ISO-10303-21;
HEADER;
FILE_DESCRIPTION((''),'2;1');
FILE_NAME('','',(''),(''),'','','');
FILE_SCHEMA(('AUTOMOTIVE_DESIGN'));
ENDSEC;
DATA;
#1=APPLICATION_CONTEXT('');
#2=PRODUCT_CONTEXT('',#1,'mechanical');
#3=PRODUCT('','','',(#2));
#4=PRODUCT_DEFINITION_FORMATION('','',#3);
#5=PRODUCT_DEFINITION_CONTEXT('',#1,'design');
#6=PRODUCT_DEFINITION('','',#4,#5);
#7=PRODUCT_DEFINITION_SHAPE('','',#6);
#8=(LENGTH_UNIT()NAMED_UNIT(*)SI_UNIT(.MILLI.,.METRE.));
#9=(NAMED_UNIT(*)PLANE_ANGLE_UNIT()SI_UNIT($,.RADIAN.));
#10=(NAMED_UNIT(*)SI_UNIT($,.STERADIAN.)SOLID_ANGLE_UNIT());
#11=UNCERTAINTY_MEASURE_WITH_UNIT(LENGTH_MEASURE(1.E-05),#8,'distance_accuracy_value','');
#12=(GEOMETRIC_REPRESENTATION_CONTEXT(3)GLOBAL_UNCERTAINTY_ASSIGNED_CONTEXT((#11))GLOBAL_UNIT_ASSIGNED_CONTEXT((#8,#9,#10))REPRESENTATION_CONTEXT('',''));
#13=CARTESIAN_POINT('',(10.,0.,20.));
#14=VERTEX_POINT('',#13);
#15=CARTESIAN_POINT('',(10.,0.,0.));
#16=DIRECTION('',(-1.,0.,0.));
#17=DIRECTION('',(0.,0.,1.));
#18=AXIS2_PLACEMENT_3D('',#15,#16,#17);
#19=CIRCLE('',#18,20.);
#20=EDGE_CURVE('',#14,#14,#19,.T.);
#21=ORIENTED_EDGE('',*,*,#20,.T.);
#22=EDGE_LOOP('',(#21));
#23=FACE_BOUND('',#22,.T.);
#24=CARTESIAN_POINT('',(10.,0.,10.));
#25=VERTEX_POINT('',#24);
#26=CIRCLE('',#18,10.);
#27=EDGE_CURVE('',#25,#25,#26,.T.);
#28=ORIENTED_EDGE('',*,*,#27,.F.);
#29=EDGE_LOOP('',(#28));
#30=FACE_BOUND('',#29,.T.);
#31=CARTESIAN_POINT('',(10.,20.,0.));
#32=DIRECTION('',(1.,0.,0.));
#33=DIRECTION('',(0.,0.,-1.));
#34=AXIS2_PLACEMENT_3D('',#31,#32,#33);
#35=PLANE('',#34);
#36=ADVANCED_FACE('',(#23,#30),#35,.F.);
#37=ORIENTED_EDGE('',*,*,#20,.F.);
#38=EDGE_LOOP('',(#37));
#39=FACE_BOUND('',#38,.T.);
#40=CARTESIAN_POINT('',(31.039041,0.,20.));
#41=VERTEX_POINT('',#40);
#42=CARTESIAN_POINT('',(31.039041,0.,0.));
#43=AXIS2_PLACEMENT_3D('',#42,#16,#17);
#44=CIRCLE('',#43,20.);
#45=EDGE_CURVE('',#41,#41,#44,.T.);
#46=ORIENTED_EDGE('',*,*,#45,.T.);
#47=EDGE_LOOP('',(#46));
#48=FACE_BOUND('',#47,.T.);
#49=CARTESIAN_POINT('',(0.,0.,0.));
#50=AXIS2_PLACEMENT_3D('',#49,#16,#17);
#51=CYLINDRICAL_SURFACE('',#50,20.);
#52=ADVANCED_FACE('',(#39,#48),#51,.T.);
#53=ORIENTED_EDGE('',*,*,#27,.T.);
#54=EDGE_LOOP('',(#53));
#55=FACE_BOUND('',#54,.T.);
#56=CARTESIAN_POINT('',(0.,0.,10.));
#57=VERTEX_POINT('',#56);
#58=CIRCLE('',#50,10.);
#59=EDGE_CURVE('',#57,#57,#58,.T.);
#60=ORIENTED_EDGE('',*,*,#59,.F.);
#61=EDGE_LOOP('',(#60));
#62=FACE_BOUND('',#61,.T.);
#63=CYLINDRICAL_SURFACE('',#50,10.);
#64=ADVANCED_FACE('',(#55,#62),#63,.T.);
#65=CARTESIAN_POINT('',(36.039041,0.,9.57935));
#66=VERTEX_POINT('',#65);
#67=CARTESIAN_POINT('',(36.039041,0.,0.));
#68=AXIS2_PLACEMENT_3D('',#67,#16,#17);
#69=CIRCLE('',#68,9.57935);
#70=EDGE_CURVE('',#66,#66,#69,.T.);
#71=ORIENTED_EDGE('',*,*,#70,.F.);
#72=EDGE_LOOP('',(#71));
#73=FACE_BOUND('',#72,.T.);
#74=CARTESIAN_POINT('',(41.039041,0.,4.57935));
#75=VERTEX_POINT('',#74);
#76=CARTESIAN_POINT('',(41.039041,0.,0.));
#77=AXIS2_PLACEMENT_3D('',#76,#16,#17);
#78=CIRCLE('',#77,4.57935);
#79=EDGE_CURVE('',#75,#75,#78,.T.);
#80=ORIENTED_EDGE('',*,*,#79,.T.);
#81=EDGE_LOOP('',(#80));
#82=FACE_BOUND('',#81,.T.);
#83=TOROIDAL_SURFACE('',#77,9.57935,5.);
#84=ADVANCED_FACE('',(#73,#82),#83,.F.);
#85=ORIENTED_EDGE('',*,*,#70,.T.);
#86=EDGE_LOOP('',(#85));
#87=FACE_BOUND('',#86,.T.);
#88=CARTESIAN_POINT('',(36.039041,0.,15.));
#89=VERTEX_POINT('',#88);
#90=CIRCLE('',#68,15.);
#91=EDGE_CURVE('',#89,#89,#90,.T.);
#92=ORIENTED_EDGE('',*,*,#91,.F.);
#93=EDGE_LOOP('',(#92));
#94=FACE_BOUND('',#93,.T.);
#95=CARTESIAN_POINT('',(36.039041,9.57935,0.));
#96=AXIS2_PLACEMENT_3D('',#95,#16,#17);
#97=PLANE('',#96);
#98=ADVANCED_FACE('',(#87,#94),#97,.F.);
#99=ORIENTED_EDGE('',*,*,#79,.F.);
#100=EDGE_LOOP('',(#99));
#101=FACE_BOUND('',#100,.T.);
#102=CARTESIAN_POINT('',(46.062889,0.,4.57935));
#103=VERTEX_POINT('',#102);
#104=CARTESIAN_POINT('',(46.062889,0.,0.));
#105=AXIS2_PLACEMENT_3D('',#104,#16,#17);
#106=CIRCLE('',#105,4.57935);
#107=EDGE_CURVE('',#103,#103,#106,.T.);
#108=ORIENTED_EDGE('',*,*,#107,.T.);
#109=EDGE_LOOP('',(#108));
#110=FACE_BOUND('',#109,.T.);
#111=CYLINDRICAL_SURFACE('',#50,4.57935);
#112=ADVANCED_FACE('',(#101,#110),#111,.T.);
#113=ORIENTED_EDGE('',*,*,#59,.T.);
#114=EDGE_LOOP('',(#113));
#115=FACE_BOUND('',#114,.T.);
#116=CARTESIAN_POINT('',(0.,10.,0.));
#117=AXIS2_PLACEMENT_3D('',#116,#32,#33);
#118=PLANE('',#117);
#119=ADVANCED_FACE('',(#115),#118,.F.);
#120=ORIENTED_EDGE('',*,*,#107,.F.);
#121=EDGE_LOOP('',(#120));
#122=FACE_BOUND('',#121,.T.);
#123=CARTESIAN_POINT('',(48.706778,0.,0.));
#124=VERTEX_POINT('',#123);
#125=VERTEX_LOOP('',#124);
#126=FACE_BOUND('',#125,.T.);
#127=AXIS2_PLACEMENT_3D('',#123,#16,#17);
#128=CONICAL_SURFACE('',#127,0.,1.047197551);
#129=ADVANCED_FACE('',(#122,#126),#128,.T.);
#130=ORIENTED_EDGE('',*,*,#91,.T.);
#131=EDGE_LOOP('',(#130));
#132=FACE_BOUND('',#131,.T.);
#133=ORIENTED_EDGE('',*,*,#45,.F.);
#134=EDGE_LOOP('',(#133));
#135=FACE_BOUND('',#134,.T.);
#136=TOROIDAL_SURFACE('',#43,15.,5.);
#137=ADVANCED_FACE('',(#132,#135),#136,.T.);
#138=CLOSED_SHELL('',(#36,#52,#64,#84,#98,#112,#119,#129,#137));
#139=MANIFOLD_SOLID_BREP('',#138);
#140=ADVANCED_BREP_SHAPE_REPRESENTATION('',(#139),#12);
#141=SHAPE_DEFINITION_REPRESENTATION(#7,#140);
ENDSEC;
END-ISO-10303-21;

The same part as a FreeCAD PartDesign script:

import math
import FreeCAD as App
import Part
import Sketcher
Q = App.Units.Quantity

doc = App.newDocument("Part")
params = doc.addObject("Spreadsheet::Sheet", "Params")
for row, (alias, value) in enumerate([
    ("sketch1_radius", "5 mm"),
    ("sketch1_width", "10 mm"),
    ("revolution_angle", "360 deg"),
], start=1):
    params.set(f"A{row}", alias)
    params.set(f"B{row}", "=" + value)
    params.setAlias(f"B{row}", alias)

body = doc.addObject("PartDesign::Body", "Body")

# Sketch on XY plane
sketch1 = body.newObject("Sketcher::SketchObject", "Sketch")
sketch1.AttachmentSupport = (doc.getObject("XY_Plane"), [""])
sketch1.MapMode = "FlatFace"
sketch1.addGeometry([
    Part.LineSegment(App.Vector(0, 0, 0), App.Vector(48.706778, 0, 0)),  # 0
    Part.LineSegment(App.Vector(48.706778, 0, 0), App.Vector(46.062889, 4.57935, 0)),  # 1
    Part.LineSegment(App.Vector(46.062889, 4.57935, 0), App.Vector(41.039041, 4.57935, 0)),  # 2
    Part.ArcOfCircle(Part.Circle(App.Vector(41.039041, 9.57935, 0), App.Vector(0, 0, 1), 5), math.radians(180), math.radians(270)),  # 3
    Part.LineSegment(App.Vector(36.039041, 9.57935, 0), App.Vector(36.039041, 15, 0)),  # 4
    Part.ArcOfCircle(Part.Circle(App.Vector(31.039041, 15, 0), App.Vector(0, 0, 1), 5), math.radians(0), math.radians(90)),  # 5
    Part.LineSegment(App.Vector(31.039041, 20, 0), App.Vector(10, 20, 0)),  # 6
    Part.LineSegment(App.Vector(10, 20, 0), App.Vector(10, 10, 0)),  # 7
    Part.LineSegment(App.Vector(10, 10, 0), App.Vector(0, 10, 0)),  # 8
    Part.LineSegment(App.Vector(0, 10, 0), App.Vector(0, 0, 0)),  # 9
], False)
sketch1.addConstraint([
    Sketcher.Constraint("Coincident", 0, 2, 1, 1),
    Sketcher.Constraint("Coincident", 1, 2, 2, 1),
    Sketcher.Constraint("Tangent", 2, 2, 3, 2),
    Sketcher.Constraint("Tangent", 3, 1, 4, 1),
    Sketcher.Constraint("Tangent", 4, 2, 5, 1),
    Sketcher.Constraint("Tangent", 5, 2, 6, 1),
    Sketcher.Constraint("Coincident", 6, 2, 7, 1),
    Sketcher.Constraint("Coincident", 7, 2, 8, 1),
    Sketcher.Constraint("Coincident", 8, 2, 9, 1),
    Sketcher.Constraint("Coincident", 9, 2, 0, 1),
    Sketcher.Constraint("Horizontal", 0),
    Sketcher.Constraint("Horizontal", 2),
    Sketcher.Constraint("Vertical", 4),
    Sketcher.Constraint("Horizontal", 6),
    Sketcher.Constraint("Vertical", 7),
    Sketcher.Constraint("Horizontal", 8),
    Sketcher.Constraint("Vertical", 9),
    Sketcher.Constraint("Coincident", 9, 2, -1, 1),
    Sketcher.Constraint("Equal", 3, 5),
    Sketcher.Constraint("Equal", 8, 7),
    Sketcher.Constraint("Equal", 7, 9),
    Sketcher.Constraint("Radius", 3, 5.0),
    Sketcher.Constraint("DistanceX", 8, 2, 8, 1, 10.0),
    Sketcher.Constraint("Angle", 1, Q("120 deg")),
    Sketcher.Constraint("DistanceX", 6, 2, 6, 1, 21.039041),
    Sketcher.Constraint("DistanceY", 4, 1, 4, 2, 5.42065),
    Sketcher.Constraint("DistanceX", 0, 1, 0, 2, 48.706778),
])
sketch1.setExpression("Constraints[21]", "Params.sketch1_radius")
sketch1.setExpression("Constraints[22]", "Params.sketch1_width")
revolution = body.newObject("PartDesign::Revolution", "Revolution")
revolution.Profile = sketch1
revolution.ReferenceAxis = (sketch1, ["H_Axis"])
revolution.setExpression("Angle", "Params.revolution_angle")

doc.recompute()
